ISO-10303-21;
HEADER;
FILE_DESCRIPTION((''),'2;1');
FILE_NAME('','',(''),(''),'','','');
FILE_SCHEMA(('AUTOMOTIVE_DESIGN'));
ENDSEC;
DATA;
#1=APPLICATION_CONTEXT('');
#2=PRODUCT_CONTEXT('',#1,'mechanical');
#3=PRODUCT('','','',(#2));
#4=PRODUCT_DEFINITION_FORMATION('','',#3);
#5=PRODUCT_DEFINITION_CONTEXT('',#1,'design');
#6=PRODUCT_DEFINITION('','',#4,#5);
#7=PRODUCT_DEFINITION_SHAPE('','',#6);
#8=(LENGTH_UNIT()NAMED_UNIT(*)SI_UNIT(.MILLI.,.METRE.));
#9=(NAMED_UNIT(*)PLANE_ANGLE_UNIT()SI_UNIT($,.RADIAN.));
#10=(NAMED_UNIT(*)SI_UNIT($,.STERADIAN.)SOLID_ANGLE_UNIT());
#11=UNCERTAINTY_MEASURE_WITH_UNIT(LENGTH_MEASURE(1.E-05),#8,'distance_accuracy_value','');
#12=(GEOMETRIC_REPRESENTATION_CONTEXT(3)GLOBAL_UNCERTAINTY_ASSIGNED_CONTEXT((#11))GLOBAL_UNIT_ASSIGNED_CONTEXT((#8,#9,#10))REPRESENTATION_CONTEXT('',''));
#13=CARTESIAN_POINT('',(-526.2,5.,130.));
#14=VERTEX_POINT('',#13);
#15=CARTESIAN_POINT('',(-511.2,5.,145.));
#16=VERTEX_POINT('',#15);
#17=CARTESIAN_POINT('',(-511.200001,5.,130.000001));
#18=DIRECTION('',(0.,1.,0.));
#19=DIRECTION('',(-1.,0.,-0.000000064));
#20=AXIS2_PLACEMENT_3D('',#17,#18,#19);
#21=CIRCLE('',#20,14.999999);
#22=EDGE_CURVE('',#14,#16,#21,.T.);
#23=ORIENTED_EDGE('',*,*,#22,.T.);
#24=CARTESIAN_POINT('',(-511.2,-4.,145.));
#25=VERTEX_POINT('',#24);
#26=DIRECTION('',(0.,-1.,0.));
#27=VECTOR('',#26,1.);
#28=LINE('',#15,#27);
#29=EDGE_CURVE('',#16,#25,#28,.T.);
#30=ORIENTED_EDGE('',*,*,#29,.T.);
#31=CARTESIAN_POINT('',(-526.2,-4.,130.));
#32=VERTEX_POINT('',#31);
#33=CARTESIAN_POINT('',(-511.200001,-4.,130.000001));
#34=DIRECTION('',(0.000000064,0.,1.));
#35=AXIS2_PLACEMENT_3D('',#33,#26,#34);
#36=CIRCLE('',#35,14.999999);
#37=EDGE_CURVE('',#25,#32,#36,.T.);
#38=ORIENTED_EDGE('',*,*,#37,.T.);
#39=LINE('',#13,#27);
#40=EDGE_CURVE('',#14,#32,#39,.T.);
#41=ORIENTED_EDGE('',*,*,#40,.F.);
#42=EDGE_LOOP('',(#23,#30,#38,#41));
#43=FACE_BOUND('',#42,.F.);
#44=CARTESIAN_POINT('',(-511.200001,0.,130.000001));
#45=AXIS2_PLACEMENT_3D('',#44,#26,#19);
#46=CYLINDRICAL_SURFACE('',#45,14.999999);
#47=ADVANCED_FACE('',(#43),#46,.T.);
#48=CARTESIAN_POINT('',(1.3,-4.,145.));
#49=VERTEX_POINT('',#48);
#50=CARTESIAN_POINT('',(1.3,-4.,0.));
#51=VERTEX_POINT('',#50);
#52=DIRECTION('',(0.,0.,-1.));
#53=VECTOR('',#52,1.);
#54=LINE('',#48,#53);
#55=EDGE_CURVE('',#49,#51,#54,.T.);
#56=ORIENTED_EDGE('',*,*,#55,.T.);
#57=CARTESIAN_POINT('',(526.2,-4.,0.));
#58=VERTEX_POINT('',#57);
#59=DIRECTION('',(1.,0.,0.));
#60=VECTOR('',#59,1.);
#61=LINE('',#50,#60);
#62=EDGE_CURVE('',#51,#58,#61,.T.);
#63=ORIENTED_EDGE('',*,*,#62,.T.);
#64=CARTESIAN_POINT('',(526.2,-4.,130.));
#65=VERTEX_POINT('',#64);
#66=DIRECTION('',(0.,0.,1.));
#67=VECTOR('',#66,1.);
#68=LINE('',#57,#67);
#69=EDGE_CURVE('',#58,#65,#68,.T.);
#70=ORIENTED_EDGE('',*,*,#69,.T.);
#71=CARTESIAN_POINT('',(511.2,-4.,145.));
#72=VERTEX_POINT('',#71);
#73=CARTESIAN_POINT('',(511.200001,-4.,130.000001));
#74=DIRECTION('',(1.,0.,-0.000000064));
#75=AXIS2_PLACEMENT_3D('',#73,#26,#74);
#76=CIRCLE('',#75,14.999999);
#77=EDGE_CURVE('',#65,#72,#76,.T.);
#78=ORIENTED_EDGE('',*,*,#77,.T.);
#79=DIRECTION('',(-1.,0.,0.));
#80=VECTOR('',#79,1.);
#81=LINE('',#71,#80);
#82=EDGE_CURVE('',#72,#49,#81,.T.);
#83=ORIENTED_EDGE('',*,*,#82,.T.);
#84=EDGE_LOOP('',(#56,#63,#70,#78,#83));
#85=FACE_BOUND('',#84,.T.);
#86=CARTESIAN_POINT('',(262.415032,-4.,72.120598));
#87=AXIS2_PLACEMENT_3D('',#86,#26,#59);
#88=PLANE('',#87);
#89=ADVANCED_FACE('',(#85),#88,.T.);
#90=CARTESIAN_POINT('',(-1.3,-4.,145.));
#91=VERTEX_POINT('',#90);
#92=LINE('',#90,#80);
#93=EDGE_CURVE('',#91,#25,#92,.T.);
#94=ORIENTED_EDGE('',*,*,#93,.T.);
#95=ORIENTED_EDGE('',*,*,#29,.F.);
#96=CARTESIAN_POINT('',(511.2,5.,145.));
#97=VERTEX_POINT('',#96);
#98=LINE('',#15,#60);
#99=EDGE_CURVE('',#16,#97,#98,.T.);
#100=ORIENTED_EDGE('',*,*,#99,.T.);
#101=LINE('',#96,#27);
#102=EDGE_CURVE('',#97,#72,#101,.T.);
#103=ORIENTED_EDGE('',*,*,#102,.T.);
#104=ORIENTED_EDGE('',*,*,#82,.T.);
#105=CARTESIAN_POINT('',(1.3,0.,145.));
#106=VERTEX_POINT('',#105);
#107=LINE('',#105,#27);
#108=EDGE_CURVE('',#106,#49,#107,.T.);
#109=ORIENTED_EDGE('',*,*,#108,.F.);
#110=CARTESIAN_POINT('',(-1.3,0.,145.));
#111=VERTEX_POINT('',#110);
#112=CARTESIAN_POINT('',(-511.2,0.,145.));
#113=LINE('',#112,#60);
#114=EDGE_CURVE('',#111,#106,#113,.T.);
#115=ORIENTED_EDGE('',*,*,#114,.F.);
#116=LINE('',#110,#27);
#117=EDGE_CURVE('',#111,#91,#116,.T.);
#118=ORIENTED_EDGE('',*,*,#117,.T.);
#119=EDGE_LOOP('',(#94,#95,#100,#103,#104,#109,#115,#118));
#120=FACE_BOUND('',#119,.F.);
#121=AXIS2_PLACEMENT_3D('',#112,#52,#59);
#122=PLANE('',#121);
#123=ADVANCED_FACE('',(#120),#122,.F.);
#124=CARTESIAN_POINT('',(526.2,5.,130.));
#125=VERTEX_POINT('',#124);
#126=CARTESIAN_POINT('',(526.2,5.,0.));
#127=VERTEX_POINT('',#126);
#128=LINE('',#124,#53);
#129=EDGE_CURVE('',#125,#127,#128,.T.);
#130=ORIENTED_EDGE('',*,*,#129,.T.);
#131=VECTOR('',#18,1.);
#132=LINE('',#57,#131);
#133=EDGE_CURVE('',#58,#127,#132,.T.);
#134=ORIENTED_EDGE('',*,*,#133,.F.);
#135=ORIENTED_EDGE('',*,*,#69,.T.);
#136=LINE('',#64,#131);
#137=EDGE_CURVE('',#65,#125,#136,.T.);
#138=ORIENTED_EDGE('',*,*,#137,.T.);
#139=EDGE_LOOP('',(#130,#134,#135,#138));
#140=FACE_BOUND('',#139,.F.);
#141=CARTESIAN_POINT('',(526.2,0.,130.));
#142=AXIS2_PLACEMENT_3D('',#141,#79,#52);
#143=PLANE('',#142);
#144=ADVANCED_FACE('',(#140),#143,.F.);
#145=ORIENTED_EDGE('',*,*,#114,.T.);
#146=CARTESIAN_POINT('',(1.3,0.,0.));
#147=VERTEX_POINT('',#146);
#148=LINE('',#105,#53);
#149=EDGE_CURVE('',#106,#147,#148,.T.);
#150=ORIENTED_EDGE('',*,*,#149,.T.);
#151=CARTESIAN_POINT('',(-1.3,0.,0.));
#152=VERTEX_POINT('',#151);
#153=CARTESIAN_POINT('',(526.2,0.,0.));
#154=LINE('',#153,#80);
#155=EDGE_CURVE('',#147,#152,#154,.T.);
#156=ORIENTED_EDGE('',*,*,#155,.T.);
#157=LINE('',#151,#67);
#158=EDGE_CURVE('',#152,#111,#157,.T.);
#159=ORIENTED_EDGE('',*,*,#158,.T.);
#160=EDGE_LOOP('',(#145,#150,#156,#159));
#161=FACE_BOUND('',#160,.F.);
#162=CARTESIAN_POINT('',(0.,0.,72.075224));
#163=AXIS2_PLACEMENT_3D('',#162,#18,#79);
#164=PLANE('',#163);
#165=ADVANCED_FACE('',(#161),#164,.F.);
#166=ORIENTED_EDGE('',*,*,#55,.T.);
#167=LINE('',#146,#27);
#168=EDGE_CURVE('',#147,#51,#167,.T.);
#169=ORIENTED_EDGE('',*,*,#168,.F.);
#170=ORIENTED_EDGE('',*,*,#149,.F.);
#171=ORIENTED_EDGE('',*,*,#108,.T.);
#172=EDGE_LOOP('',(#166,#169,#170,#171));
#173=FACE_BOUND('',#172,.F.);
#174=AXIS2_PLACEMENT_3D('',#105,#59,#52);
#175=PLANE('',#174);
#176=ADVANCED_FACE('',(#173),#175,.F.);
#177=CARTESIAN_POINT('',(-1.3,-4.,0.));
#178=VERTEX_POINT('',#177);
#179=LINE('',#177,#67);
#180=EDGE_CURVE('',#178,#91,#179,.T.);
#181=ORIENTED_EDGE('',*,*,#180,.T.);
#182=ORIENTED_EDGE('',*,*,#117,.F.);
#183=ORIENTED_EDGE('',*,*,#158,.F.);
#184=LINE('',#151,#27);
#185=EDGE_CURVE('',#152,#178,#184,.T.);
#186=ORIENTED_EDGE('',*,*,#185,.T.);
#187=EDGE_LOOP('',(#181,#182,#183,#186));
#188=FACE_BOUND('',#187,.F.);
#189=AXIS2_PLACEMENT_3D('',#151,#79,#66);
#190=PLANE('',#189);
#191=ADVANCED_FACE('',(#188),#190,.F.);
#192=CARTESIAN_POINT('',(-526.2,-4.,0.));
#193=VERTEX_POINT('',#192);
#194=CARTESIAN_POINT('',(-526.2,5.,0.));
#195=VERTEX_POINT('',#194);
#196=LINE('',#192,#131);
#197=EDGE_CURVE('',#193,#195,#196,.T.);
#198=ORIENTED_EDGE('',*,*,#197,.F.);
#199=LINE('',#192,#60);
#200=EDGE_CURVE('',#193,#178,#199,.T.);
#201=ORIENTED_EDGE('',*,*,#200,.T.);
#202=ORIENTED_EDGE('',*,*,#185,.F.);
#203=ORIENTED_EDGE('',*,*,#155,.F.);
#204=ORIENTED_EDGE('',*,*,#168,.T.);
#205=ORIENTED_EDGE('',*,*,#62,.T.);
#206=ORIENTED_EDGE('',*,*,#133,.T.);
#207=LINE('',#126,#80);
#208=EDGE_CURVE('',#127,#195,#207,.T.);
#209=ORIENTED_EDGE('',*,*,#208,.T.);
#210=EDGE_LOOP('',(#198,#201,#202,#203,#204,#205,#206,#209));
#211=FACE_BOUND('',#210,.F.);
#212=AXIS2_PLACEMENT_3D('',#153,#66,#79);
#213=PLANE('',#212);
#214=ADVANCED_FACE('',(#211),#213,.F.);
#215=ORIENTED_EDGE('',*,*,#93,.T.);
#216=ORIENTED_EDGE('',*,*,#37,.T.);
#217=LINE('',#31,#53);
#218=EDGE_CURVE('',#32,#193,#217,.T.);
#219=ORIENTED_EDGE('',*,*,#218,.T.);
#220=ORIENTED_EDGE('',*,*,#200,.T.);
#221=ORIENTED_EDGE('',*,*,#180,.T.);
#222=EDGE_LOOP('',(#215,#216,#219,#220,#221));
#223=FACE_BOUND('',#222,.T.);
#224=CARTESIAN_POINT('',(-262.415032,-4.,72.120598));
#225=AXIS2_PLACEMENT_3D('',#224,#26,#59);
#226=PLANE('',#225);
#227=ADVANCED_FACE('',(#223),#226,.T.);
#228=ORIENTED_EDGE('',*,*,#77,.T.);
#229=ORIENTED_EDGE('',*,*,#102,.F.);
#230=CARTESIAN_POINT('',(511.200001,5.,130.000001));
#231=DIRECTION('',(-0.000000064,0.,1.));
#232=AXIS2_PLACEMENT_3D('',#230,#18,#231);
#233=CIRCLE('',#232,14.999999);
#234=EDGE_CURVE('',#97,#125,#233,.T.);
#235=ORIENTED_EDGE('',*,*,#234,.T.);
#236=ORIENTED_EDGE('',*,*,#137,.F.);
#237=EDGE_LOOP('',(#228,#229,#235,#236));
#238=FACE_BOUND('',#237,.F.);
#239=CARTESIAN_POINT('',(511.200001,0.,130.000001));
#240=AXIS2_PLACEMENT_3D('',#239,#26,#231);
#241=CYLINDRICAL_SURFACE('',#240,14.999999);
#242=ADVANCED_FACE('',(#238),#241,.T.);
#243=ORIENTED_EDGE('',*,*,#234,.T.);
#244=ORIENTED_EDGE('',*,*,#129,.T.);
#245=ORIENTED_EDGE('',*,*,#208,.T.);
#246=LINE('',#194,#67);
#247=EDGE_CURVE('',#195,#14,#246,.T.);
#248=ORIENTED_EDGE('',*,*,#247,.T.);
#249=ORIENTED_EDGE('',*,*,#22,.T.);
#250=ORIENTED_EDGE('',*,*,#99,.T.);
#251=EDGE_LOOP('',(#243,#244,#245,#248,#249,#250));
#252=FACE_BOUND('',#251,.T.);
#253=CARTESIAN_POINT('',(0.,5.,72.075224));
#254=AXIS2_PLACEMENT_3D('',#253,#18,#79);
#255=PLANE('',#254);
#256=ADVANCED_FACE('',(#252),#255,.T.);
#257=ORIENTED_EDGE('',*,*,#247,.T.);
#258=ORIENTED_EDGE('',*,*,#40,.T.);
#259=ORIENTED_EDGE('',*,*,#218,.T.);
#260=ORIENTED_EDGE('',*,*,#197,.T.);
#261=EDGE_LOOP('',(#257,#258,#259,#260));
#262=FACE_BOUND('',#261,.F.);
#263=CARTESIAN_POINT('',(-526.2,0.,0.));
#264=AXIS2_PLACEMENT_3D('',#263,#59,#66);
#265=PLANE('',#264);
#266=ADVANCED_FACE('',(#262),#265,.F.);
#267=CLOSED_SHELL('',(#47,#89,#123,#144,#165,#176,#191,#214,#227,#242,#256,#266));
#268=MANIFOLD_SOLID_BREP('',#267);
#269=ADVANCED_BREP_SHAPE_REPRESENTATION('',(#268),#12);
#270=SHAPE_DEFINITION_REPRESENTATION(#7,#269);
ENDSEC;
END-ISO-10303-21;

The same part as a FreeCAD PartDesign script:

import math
import FreeCAD as App
import Part
import Sketcher
from FreeCAD import Vector

doc = App.newDocument("Part")
body = doc.addObject("PartDesign::Body", "Body")
body.AllowCompound = True

sketch1 = body.newObject("Sketcher::SketchObject", "Sketch")
sketch1.AttachmentSupport = (doc.getObject("XZ_Plane"), [""])
sketch1.MapMode = "FlatFace"
sketch1.addGeometry(Part.LineSegment(Vector(1.3, 145, 0), Vector(1.3, 0, 0)), False)
sketch1.addGeometry(Part.LineSegment(Vector(1.3, 0, 0), Vector(526.2, 0, 0)), False)
sketch1.addGeometry(Part.LineSegment(Vector(526.2, 0, 0), Vector(526.2, 130, 0)), False)
sketch1.addGeometry(Part.ArcOfCircle(Part.Circle(Vector(511.200001, 130.000001, 0), Vector(0, 0, 1), 14.999999), math.radians(-0.000004), math.radians(90.000004)), False)
sketch1.addGeometry(Part.LineSegment(Vector(511.2, 145, 0), Vector(1.3, 145, 0)), False)
sketch1.addGeometry(Part.ArcOfCircle(Part.Circle(Vector(-511.200001, 130.000001, 0), Vector(0, 0, 1), 14.999999), math.radians(89.999996), math.radians(180.000004)), False)
sketch1.addGeometry(Part.LineSegment(Vector(-526.2, 130, 0), Vector(-526.2, 0, 0)), False)
sketch1.addGeometry(Part.LineSegment(Vector(-526.2, 0, 0), Vector(-1.3, 0, 0)), False)
sketch1.addGeometry(Part.LineSegment(Vector(-1.3, 0, 0), Vector(-1.3, 145, 0)), False)
sketch1.addGeometry(Part.LineSegment(Vector(-1.3, 145, 0), Vector(-511.2, 145, 0)), False)
sketch1.addConstraint(Sketcher.Constraint("Coincident", 0, 2, 1, 1))
sketch1.addConstraint(Sketcher.Constraint("Coincident", 1, 2, 2, 1))
sketch1.addConstraint(Sketcher.Constraint("Tangent", 2, 2, 3, 1))
sketch1.addConstraint(Sketcher.Constraint("Tangent", 3, 2, 4, 1))
sketch1.addConstraint(Sketcher.Constraint("Coincident", 4, 2, 0, 1))
sketch1.addConstraint(Sketcher.Constraint("Tangent", 5, 2, 6, 1))
sketch1.addConstraint(Sketcher.Constraint("Coincident", 6, 2, 7, 1))
sketch1.addConstraint(Sketcher.Constraint("Coincident", 7, 2, 8, 1))
sketch1.addConstraint(Sketcher.Constraint("Coincident", 8, 2, 9, 1))
sketch1.addConstraint(Sketcher.Constraint("Tangent", 9, 2, 5, 1))
sketch1.addConstraint(Sketcher.Constraint("Vertical", 0))
sketch1.addConstraint(Sketcher.Constraint("Horizontal", 1))
sketch1.addConstraint(Sketcher.Constraint("Vertical", 2))
sketch1.addConstraint(Sketcher.Constraint("Horizontal", 4))
sketch1.addConstraint(Sketcher.Constraint("Vertical", 6))
sketch1.addConstraint(Sketcher.Constraint("Horizontal", 7))
sketch1.addConstraint(Sketcher.Constraint("Vertical", 8))
sketch1.addConstraint(Sketcher.Constraint("Horizontal", 9))
sketch1.addConstraint(Sketcher.Constraint("Equal", 3, 5))
sketch1.addConstraint(Sketcher.Constraint("Symmetric", 1, 2, 6, 2, -1, 1))
sketch1.addConstraint(Sketcher.Constraint("Symmetric", 0, 2, 7, 2, -2))
sketch1.addConstraint(Sketcher.Constraint("Horizontal", 3, 3, 5, 3))
sketch1.addConstraint(Sketcher.Constraint("Radius", 3, 14.999999))
sketch1.addConstraint(Sketcher.Constraint("DistanceY", 0, 2, 0, 1, 145.0))
sketch1.addConstraint(Sketcher.Constraint("DistanceX", 1, 1, 1, 2, 524.9))
sketch1.addConstraint(Sketcher.Constraint("DistanceX", -1, 1, 3, 3, 511.200001))
pad1 = body.newObject("PartDesign::Pad", "Pad")
pad1.Profile = sketch1
pad1.Length = 4

sketch2 = body.newObject("Sketcher::SketchObject", "Sketch001")
sketch2.AttachmentSupport = (doc.getObject("XZ_Plane"), [""])
sketch2.MapMode = "FlatFace"
sketch2.addGeometry(Part.ArcOfCircle(Part.Circle(Vector(511.200001, 130.000001, 0), Vector(0, 0, 1), 14.999999), math.radians(-0.000004), math.radians(90.000004)), False)
sketch2.addGeometry(Part.LineSegment(Vector(526.2, 130, 0), Vector(526.2, 0, 0)), False)
sketch2.addGeometry(Part.LineSegment(Vector(526.2, 0, 0), Vector(-526.2, 0, 0)), False)
sketch2.addGeometry(Part.LineSegment(Vector(-526.2, 0, 0), Vector(-526.2, 130, 0)), False)
sketch2.addGeometry(Part.ArcOfCircle(Part.Circle(Vector(-511.200001, 130.000001, 0), Vector(0, 0, 1), 14.999999), math.radians(89.999996), math.radians(180.000004)), False)
sketch2.addGeometry(Part.LineSegment(Vector(-511.2, 145, 0), Vector(511.2, 145, 0)), False)
sketch2.addConstraint(Sketcher.Constraint("Tangent", 0, 1, 1, 1))
sketch2.addConstraint(Sketcher.Constraint("Coincident", 1, 2, 2, 1))
sketch2.addConstraint(Sketcher.Constraint("Coincident", 2, 2, 3, 1))
sketch2.addConstraint(Sketcher.Constraint("Tangent", 3, 2, 4, 2))
sketch2.addConstraint(Sketcher.Constraint("Tangent", 4, 1, 5, 1))
sketch2.addConstraint(Sketcher.Constraint("Tangent", 5, 2, 0, 2))
sketch2.addConstraint(Sketcher.Constraint("Vertical", 1))
sketch2.addConstraint(Sketcher.Constraint("Horizontal", 2))
sketch2.addConstraint(Sketcher.Constraint("Vertical", 3))
sketch2.addConstraint(Sketcher.Constraint("Horizontal", 5))
sketch2.addConstraint(Sketcher.Constraint("Equal", 0, 4))
sketch2.addConstraint(Sketcher.Constraint("Symmetric", 1, 2, 2, 2, -1, 1))
sketch2.addConstraint(Sketcher.Constraint("Radius", 0, 14.999999))
sketch2.addConstraint(Sketcher.Constraint("DistanceY", 1, 2, 1, 1, 130.0))
sketch2.addConstraint(Sketcher.Constraint("DistanceX", 2, 2, 2, 1, 1052.4))
pad2 = body.newObject("PartDesign::Pad", "Pad001")
pad2.Profile = sketch2
pad2.Length = 5
pad2.Reversed = True

doc.recompute()
